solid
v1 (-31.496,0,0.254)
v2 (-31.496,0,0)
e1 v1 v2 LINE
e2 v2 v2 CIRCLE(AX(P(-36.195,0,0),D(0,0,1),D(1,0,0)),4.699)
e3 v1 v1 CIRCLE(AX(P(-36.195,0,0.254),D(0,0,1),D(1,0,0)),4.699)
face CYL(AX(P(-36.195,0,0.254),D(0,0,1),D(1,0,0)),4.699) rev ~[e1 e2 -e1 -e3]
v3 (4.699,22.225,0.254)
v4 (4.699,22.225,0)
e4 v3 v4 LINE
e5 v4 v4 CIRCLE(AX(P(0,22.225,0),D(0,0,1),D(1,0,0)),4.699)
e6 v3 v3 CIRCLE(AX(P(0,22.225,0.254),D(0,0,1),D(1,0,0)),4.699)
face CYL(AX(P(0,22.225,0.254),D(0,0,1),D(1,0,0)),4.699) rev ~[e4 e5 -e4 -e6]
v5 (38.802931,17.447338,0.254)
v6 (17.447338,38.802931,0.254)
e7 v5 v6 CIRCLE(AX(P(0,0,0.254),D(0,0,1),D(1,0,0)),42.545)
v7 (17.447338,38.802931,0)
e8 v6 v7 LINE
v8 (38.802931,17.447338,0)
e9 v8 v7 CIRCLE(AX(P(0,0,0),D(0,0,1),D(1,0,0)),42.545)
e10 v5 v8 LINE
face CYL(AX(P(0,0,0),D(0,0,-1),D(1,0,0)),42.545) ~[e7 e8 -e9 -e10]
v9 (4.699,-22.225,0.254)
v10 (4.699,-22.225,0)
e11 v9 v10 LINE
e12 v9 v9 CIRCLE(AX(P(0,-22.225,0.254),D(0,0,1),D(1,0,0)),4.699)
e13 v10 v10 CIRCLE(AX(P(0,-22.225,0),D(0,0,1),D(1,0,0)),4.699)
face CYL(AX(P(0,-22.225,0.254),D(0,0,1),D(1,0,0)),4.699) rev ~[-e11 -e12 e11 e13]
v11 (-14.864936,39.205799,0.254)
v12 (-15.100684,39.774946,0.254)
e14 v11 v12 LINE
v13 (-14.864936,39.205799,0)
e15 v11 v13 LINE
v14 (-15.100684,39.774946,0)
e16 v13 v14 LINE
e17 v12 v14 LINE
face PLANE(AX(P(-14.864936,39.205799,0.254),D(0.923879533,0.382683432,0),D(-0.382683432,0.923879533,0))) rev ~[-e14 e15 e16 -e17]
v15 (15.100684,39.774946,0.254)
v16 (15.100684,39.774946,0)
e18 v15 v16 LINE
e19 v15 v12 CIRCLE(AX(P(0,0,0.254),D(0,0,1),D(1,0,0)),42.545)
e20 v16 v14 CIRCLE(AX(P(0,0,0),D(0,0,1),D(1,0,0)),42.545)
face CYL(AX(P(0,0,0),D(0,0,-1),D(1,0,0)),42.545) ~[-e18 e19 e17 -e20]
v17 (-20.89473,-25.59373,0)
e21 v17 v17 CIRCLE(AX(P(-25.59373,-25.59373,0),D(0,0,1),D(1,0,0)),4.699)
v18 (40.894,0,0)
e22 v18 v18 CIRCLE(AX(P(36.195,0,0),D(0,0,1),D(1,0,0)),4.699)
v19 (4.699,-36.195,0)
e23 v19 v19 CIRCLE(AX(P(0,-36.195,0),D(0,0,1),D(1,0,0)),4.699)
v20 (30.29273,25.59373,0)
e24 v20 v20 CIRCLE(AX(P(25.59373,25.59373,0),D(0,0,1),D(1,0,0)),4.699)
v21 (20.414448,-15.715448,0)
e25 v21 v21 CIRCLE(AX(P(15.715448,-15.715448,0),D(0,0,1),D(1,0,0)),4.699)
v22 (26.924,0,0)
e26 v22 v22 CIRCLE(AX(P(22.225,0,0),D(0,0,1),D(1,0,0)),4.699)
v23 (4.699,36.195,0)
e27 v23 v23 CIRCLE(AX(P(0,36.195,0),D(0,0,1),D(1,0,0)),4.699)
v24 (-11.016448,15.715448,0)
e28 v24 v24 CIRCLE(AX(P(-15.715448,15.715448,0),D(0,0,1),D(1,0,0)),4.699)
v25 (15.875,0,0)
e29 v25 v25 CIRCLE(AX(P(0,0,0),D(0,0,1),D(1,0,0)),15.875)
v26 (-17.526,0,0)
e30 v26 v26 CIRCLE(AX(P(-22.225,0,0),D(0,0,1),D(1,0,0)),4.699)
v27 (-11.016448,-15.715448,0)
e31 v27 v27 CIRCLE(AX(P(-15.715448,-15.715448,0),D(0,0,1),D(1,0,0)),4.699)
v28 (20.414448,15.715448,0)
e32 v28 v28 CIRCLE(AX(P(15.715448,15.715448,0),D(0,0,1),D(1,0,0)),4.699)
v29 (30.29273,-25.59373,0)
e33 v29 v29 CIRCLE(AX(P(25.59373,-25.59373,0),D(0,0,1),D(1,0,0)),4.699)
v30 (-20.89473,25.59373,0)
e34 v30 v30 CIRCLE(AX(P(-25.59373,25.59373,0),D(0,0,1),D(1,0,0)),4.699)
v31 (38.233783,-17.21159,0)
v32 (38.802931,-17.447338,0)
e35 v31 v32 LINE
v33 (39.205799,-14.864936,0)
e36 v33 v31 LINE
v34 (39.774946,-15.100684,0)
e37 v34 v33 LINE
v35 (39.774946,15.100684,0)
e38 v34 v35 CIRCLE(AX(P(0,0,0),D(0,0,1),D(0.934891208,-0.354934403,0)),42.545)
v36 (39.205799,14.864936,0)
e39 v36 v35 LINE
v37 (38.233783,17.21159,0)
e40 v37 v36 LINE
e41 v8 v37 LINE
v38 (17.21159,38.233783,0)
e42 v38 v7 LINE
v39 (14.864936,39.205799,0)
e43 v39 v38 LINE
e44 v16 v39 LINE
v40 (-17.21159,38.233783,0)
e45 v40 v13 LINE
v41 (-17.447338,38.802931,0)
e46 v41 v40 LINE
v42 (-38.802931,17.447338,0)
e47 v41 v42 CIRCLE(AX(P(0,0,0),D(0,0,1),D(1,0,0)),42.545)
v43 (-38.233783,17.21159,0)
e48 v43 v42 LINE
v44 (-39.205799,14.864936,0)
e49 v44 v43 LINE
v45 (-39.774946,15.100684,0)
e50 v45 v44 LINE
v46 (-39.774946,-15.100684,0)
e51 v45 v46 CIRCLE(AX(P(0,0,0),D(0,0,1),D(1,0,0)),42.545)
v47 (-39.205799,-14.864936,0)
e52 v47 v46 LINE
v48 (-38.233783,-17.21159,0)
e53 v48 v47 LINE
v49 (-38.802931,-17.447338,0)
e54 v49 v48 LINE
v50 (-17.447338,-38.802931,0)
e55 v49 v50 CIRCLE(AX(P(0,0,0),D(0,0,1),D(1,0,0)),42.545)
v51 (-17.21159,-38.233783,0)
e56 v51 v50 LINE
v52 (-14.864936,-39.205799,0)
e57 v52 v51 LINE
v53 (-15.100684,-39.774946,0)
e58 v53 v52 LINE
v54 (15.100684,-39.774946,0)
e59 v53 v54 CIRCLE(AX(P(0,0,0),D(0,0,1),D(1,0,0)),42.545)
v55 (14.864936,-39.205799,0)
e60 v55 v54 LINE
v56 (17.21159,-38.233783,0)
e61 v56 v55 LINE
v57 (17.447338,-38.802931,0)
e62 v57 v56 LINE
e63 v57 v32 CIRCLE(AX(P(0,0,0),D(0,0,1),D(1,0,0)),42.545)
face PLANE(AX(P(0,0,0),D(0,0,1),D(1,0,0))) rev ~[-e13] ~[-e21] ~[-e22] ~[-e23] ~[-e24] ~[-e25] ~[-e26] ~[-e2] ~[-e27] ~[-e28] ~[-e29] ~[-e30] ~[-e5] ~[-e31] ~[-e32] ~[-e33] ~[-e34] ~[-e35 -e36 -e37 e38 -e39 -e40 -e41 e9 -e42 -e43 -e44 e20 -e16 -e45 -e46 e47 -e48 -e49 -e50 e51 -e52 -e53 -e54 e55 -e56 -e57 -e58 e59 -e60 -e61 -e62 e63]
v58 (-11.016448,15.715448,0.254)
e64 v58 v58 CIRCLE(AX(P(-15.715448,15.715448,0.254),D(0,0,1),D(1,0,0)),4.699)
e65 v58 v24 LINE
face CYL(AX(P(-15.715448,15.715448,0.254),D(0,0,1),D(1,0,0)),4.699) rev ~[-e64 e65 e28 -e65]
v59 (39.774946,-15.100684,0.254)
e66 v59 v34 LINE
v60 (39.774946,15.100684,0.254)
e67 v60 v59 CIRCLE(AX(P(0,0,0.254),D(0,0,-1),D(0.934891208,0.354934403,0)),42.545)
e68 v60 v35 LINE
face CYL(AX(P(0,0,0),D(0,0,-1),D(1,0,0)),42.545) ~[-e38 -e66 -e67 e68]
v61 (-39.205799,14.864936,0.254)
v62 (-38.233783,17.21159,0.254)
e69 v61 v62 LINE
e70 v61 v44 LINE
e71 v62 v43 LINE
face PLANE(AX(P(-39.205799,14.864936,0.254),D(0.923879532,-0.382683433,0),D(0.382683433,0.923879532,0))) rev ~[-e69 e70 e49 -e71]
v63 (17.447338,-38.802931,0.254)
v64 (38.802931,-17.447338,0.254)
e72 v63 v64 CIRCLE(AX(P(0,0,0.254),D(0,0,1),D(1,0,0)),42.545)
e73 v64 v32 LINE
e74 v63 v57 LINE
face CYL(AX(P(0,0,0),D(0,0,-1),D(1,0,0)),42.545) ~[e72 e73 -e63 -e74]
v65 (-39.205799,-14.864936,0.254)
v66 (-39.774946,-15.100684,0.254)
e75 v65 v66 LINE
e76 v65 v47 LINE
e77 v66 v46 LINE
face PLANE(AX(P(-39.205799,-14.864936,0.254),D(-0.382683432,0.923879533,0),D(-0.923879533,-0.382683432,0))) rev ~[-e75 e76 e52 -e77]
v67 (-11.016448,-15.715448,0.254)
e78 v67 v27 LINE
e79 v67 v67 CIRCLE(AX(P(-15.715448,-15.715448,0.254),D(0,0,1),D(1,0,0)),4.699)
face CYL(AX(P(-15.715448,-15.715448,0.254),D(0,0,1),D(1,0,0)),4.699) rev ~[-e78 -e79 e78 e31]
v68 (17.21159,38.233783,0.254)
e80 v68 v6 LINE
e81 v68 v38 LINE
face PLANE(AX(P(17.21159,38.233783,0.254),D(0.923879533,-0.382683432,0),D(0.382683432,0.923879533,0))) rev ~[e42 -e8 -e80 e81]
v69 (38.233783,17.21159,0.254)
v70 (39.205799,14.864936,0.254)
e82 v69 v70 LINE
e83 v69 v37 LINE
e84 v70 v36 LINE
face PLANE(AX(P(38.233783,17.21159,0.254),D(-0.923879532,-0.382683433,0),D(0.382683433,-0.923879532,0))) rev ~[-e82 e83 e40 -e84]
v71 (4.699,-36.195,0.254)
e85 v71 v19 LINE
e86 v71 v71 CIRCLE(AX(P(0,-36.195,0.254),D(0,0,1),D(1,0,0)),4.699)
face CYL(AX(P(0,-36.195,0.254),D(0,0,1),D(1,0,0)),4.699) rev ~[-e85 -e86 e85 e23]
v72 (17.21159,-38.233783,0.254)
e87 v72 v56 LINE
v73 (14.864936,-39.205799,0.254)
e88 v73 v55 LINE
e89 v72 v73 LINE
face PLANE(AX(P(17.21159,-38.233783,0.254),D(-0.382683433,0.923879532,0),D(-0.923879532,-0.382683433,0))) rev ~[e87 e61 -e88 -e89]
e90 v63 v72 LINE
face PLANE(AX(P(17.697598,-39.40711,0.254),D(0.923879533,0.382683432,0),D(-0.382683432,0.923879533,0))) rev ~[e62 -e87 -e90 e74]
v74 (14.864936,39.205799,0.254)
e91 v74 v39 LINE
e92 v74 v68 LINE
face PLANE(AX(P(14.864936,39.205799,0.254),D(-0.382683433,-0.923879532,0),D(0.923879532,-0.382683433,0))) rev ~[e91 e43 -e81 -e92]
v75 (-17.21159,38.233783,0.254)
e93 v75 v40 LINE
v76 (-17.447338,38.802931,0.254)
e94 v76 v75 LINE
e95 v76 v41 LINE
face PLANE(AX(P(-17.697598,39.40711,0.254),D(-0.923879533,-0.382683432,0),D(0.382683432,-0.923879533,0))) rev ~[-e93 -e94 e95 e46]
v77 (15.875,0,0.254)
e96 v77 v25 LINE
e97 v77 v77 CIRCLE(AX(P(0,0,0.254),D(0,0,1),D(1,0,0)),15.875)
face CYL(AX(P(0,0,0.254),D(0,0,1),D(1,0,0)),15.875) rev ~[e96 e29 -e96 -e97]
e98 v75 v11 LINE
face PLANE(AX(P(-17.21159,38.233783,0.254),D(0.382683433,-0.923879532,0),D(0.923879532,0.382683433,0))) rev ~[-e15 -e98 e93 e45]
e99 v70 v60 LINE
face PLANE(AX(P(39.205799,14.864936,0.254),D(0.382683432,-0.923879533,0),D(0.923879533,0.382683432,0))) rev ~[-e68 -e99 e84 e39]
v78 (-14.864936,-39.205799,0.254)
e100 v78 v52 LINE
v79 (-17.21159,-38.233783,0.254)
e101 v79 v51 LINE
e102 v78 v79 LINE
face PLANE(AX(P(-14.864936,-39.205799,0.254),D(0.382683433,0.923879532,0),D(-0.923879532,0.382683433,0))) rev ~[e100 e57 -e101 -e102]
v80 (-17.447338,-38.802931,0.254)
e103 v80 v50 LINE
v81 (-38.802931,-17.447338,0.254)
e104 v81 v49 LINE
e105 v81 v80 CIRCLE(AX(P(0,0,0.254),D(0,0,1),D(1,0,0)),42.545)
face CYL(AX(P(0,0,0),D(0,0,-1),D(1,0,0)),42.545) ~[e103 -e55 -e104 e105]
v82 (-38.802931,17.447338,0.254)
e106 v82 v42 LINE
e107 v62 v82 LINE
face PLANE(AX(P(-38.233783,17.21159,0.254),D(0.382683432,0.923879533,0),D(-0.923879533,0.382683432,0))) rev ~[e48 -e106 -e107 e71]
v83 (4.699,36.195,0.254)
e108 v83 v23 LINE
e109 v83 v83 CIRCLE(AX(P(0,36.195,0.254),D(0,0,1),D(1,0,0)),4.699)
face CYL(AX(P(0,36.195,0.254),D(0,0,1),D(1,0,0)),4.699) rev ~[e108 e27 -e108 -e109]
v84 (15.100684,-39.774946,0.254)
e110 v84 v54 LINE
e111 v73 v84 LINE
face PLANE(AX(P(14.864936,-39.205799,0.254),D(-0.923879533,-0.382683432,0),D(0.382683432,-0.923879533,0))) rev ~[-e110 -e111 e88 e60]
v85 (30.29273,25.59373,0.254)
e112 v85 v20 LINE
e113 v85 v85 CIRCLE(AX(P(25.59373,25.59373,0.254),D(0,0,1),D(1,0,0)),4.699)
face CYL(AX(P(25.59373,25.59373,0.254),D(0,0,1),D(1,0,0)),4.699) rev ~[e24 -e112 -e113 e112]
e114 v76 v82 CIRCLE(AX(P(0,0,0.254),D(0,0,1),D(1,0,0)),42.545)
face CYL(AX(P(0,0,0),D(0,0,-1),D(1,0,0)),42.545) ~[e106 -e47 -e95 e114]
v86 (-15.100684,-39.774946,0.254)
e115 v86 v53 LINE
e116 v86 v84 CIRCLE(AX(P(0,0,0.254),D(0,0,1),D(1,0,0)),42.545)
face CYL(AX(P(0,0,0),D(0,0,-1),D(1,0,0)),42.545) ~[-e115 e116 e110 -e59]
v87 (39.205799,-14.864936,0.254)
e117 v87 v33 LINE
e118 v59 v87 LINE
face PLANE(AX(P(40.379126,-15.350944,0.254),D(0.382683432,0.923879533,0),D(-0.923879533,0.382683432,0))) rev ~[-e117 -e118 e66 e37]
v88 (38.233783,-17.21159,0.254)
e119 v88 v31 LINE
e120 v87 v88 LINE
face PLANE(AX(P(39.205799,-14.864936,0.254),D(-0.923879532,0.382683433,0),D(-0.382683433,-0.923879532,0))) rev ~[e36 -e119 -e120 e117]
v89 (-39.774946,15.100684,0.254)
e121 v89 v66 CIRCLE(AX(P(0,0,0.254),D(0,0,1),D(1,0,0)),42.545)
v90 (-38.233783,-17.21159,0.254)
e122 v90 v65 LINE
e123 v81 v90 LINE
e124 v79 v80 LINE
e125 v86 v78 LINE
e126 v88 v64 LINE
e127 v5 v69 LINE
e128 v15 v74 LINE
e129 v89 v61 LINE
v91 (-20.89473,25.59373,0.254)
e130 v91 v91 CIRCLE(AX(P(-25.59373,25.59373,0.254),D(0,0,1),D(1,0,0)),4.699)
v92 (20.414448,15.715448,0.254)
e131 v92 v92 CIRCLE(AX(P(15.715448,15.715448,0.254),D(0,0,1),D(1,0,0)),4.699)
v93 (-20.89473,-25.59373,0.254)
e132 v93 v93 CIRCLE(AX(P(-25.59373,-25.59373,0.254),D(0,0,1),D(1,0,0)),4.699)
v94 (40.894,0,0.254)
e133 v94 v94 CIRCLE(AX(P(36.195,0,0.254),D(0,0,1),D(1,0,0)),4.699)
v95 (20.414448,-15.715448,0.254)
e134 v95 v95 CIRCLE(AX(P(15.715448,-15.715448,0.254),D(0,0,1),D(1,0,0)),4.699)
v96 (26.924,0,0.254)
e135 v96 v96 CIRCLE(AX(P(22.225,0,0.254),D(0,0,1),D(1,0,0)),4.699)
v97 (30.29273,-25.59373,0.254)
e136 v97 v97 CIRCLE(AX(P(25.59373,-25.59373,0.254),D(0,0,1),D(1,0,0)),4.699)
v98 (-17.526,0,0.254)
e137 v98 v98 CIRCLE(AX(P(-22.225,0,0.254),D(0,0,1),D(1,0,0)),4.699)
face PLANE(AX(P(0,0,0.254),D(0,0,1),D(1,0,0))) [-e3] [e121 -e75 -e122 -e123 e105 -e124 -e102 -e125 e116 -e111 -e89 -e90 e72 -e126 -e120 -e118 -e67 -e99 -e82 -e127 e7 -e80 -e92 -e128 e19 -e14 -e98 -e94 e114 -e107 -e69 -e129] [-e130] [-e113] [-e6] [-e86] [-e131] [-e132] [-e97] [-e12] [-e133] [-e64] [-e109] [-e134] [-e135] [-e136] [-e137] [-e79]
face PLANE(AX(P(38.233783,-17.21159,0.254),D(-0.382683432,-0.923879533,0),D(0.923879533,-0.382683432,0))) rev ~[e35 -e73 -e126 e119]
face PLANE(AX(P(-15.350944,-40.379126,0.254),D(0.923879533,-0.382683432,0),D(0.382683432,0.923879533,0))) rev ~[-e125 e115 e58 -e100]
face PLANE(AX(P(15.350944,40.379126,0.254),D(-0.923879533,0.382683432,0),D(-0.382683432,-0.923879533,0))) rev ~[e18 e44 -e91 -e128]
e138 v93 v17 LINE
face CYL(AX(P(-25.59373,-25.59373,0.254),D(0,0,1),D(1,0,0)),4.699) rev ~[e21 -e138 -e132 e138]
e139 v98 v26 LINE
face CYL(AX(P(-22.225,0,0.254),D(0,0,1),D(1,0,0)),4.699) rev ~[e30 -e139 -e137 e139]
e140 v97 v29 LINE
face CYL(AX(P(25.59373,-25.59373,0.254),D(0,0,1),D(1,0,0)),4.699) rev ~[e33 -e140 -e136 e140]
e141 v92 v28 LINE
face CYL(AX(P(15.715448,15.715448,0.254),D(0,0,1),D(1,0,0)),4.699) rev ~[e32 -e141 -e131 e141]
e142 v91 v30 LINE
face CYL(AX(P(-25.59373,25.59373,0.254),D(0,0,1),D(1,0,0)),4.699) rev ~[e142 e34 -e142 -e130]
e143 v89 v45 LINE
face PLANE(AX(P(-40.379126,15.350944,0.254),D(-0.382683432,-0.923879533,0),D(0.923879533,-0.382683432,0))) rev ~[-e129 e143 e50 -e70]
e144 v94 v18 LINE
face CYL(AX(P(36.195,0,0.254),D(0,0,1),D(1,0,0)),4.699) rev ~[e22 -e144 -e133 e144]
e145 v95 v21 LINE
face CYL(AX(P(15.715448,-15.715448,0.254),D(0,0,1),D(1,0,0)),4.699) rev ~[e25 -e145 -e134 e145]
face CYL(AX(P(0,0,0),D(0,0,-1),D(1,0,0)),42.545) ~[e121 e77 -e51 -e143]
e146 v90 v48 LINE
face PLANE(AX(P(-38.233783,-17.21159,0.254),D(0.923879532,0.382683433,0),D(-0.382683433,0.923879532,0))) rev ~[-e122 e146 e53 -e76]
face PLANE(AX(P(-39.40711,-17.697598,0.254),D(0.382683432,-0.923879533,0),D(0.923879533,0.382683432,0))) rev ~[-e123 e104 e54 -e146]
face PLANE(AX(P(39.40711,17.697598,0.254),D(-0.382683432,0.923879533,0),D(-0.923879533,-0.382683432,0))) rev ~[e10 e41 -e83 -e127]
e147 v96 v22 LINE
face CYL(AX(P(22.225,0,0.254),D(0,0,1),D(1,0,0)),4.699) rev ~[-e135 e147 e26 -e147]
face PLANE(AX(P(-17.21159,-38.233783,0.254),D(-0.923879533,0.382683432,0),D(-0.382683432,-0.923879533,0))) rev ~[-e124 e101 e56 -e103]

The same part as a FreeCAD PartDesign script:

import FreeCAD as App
import Part
import Sketcher
Q = App.Units.Quantity


def add_polygon(sketch, points):
    """Adds a closed chain of lines whose ends are joined by coincident constraints."""
    first, n = sketch.GeometryCount, len(points)
    for a, b in zip(points, points[1:] + points[:1]):
        sketch.addGeometry(Part.LineSegment(App.Vector(*a, 0), App.Vector(*b, 0)), False)
    for i in range(n):
        sketch.addConstraint(Sketcher.Constraint("Coincident", first + i, 2, first + (i + 1) % n, 1))

doc = App.newDocument("Part")
params = doc.addObject("Spreadsheet::Sheet", "Params")
for row, (alias, value) in enumerate([
    ("sketch1_diameter", "3.35 in"),
    ("pad1_length", "0.01 in"),
    ("sketch2_diameter", "1.25 in"),
    ("sketch3_length", "0.1 in"),
    ("sketch3_length2", "0.05 in"),
    ("sketch4_diameter", "0.37 in"),
], start=1):
    params.set(f"A{row}", alias)
    params.set(f"B{row}", "=" + value)
    params.setAlias(f"B{row}", alias)

body = doc.addObject("PartDesign::Body", "Body")

sketch1 = body.newObject("Sketcher::SketchObject", "Sketch")
sketch1.AttachmentSupport = (doc.getObject("XY_Plane"), [""])
sketch1.MapMode = "FlatFace"
sketch1.addGeometry(Part.Circle(App.Vector(0, 0, 0), App.Vector(0, 0, 1), 42.545), False)
sketch1.addConstraint([
    Sketcher.Constraint("Coincident", 0, 3, -1, 1),
    Sketcher.Constraint("Diameter", 0, Q("3.35 in")),
])
sketch1.setExpression("Constraints[1]", "Params.sketch1_diameter")
pad1 = body.newObject("PartDesign::Pad", "Pad")
pad1.Profile = sketch1
pad1.setExpression("Length", "Params.pad1_length")

sketch2 = body.newObject("Sketcher::SketchObject", "Sketch001")
sketch2.AttachmentSupport = (doc.getObject("XY_Plane"), [""])
sketch2.MapMode = "FlatFace"
sketch2.AttachmentOffset = App.Placement(App.Vector(0, 0, 0.01 * 25.4), App.Rotation())
sketch2.addGeometry(Part.Circle(App.Vector(0, 0, 0), App.Vector(0, 0, 1), 15.875), False)
sketch2.addConstraint([
    Sketcher.Constraint("Coincident", 0, 3, -1, 1),
    Sketcher.Constraint("Diameter", 0, Q("1.25 in")),
])
sketch2.setExpression("Constraints[1]", "Params.sketch2_diameter")
pocket1 = body.newObject("PartDesign::Pocket", "Pocket")
pocket1.Profile = sketch2
pocket1.Type = "ThroughAll"

sketch3 = body.newObject("Sketcher::SketchObject", "Sketch002")
sketch3.AttachmentSupport = (doc.getObject("XY_Plane"), [""])
sketch3.MapMode = "FlatFace"
sketch3.AttachmentOffset = App.Placement(App.Vector(0, 0, 0.01 * 25.4), App.Rotation())
add_polygon(sketch3, [(40.379126, 15.350944), (39.40711, 17.697598), (38.233783, 17.21159), (39.205799, 14.864936)])
add_polygon(sketch3, [(-15.350944, 40.379126), (-17.697598, 39.40711), (-17.21159, 38.233783), (-14.864936, 39.205799)])
add_polygon(sketch3, [(-39.40711, 17.697598), (-40.379126, 15.350944), (-39.205799, 14.864936), (-38.233783, 17.21159)])
add_polygon(sketch3, [(-40.379126, -15.350944), (-39.40711, -17.697598), (-38.233783, -17.21159), (-39.205799, -14.864936)])
add_polygon(sketch3, [(-17.697598, -39.40711), (-15.350944, -40.379126), (-14.864936, -39.205799), (-17.21159, -38.233783)])
add_polygon(sketch3, [(15.350944, -40.379126), (17.697598, -39.40711), (17.21159, -38.233783), (14.864936, -39.205799)])
add_polygon(sketch3, [(39.40711, -17.697598), (40.379126, -15.350944), (39.205799, -14.864936), (38.233783, -17.21159)])
add_polygon(sketch3, [(17.697598, 39.40711), (15.350944, 40.379126), (14.864936, 39.205799), (17.21159, 38.233783)])
sketch3.addConstraint([
    Sketcher.Constraint("Symmetric", 0, 2, 12, 2, -1, 1),
    Sketcher.Constraint("Symmetric", 1, 2, 13, 2, -1, 1),
    Sketcher.Constraint("Symmetric", 2, 2, 14, 2, -1, 1),
    Sketcher.Constraint("Symmetric", 3, 2, 15, 2, -1, 1),
    Sketcher.Constraint("Symmetric", 4, 2, 20, 2, -1, 1),
    Sketcher.Constraint("Symmetric", 5, 2, 21, 2, -1, 1),
    Sketcher.Constraint("Symmetric", 6, 2, 22, 2, -1, 1),
    Sketcher.Constraint("Symmetric", 7, 2, 23, 2, -1, 1),
    Sketcher.Constraint("Symmetric", 8, 2, 24, 2, -1, 1),
    Sketcher.Constraint("Symmetric", 9, 2, 25, 2, -1, 1),
    Sketcher.Constraint("Symmetric", 10, 2, 26, 2, -1, 1),
    Sketcher.Constraint("Symmetric", 11, 2, 27, 2, -1, 1),
    Sketcher.Constraint("Symmetric", 16, 2, 28, 2, -1, 1),
    Sketcher.Constraint("Symmetric", 17, 2, 29, 2, -1, 1),
    Sketcher.Constraint("Symmetric", 18, 2, 30, 2, -1, 1),
    Sketcher.Constraint("Symmetric", 19, 2, 31, 2, -1, 1),
    Sketcher.Constraint("Symmetric", 3, 2, 8, 2, -2),
    Sketcher.Constraint("Symmetric", 2, 2, 9, 2, -2),
    Sketcher.Constraint("Symmetric", 1, 2, 10, 2, -2),
    Sketcher.Constraint("Symmetric", 0, 2, 11, 2, -2),
    Sketcher.Constraint("Symmetric", 19, 2, 20, 2, -2),
    Sketcher.Constraint("Symmetric", 18, 2, 21, 2, -2),
    Sketcher.Constraint("Symmetric", 17, 2, 22, 2, -2),
    Sketcher.Constraint("Symmetric", 16, 2, 23, 2, -2),
    Sketcher.Constraint("Perpendicular", 0, 1),
    Sketcher.Constraint("Perpendicular", 1, 2),
    Sketcher.Constraint("Perpendicular", 2, 3),
    Sketcher.Constraint("Parallel", 3, 4),
    Sketcher.Constraint("Perpendicular", 4, 5),
    Sketcher.Constraint("Perpendicular", 5, 6),
    Sketcher.Constraint("Perpendicular", 6, 7),
    Sketcher.Constraint("Equal", 2, 4),
    Sketcher.Constraint("Equal", 3, 5),
    Sketcher.Constraint("Distance", 0, Q("0.1 in")),
    Sketcher.Constraint("Angle", 0, Q("112.5 deg")),
    Sketcher.Constraint("Distance", 1, Q("0.05 in")),
    Sketcher.Constraint("DistanceX", -1, 1, 2, 2, 39.205799),
    Sketcher.Constraint("DistanceY", -1, 1, 6, 2, 39.205799),
    Sketcher.Constraint("DistanceX", 5, 2, 0, 2, 56.6187),
    Sketcher.Constraint("DistanceY", 0, 2, 6, 2, 21.508202),
])
sketch3.setExpression("Constraints[65]", "Params.sketch3_length")
sketch3.setExpression("Constraints[67]", "Params.sketch3_length2")
pocket2 = body.newObject("PartDesign::Pocket", "Pocket001")
pocket2.Profile = sketch3
pocket2.Type = "ThroughAll"

sketch4 = body.newObject("Sketcher::SketchObject", "Sketch003")
sketch4.AttachmentSupport = (doc.getObject("XY_Plane"), [""])
sketch4.MapMode = "FlatFace"
sketch4.AttachmentOffset = App.Placement(App.Vector(0, 0, 0.01 * 25.4), App.Rotation())
sketch4.addGeometry([
    Part.Circle(App.Vector(22.225, 0, 0), App.Vector(0, 0, 1), 4.699),
    Part.Circle(App.Vector(36.195, 0, 0), App.Vector(0, 0, 1), 4.699),
    Part.Circle(App.Vector(15.715448, -15.715448, 0), App.Vector(0, 0, 1), 4.699),
    Part.Circle(App.Vector(25.59373, -25.59373, 0), App.Vector(0, 0, 1), 4.699),
    Part.Circle(App.Vector(0, -22.225, 0), App.Vector(0, 0, 1), 4.699),
    Part.Circle(App.Vector(0, -36.195, 0), App.Vector(0, 0, 1), 4.699),
    Part.Circle(App.Vector(-15.715448, -15.715448, 0), App.Vector(0, 0, 1), 4.699),
    Part.Circle(App.Vector(-25.59373, -25.59373, 0), App.Vector(0, 0, 1), 4.699),
    Part.Circle(App.Vector(-22.225, 0, 0), App.Vector(0, 0, 1), 4.699),
    Part.Circle(App.Vector(-36.195, 0, 0), App.Vector(0, 0, 1), 4.699),
    Part.Circle(App.Vector(-15.715448, 15.715448, 0), App.Vector(0, 0, 1), 4.699),
    Part.Circle(App.Vector(-25.59373, 25.59373, 0), App.Vector(0, 0, 1), 4.699),
    Part.Circle(App.Vector(0, 22.225, 0), App.Vector(0, 0, 1), 4.699),
    Part.Circle(App.Vector(0, 36.195, 0), App.Vector(0, 0, 1), 4.699),
    Part.Circle(App.Vector(15.715448, 15.715448, 0), App.Vector(0, 0, 1), 4.699),
    Part.Circle(App.Vector(25.59373, 25.59373, 0), App.Vector(0, 0, 1), 4.699),
], False)
sketch4.addConstraint([
    Sketcher.Constraint("Equal", 0, 1),
    Sketcher.Constraint("Equal", 1, 2),
    Sketcher.Constraint("Equal", 2, 3),
    Sketcher.Constraint("Equal", 3, 4),
    Sketcher.Constraint("Equal", 4, 5),
    Sketcher.Constraint("Equal", 5, 6),
    Sketcher.Constraint("Equal", 6, 7),
    Sketcher.Constraint("Equal", 7, 8),
    Sketcher.Constraint("Equal", 8, 9),
    Sketcher.Constraint("Equal", 9, 10),
    Sketcher.Constraint("Equal", 10, 11),
    Sketcher.Constraint("Equal", 11, 12),
    Sketcher.Constraint("Equal", 12, 13),
    Sketcher.Constraint("Equal", 13, 14),
    Sketcher.Constraint("Equal", 14, 15),
    Sketcher.Constraint("Symmetric", 0, 3, 8, 3, -1, 1),
    Sketcher.Constraint("Symmetric", 1, 3, 9, 3, -1, 1),
    Sketcher.Constraint("Symmetric", 2, 3, 10, 3, -1, 1),
    Sketcher.Constraint("Symmetric", 3, 3, 11, 3, -1, 1),
    Sketcher.Constraint("Symmetric", 4, 3, 12, 3, -1, 1),
    Sketcher.Constraint("Symmetric", 5, 3, 13, 3, -1, 1),
    Sketcher.Constraint("Symmetric", 6, 3, 14, 3, -1, 1),
    Sketcher.Constraint("Symmetric", 7, 3, 15, 3, -1, 1),
    Sketcher.Constraint("Symmetric", 2, 3, 6, 3, -2),
    Sketcher.Constraint("Symmetric", 3, 3, 7, 3, -2),
    Sketcher.Constraint("PointOnObject", 0, 3, -1),
    Sketcher.Constraint("PointOnObject", 1, 3, -1),
    Sketcher.Constraint("PointOnObject", 4, 3, -2),
    Sketcher.Constraint("PointOnObject", 5, 3, -2),
    Sketcher.Constraint("Diameter", 0, Q("0.37 in")),
    Sketcher.Constraint("DistanceX", 0, 3, 1, 3, Q("0.55 in")),
    Sketcher.Constraint("DistanceY", 5, 3, 4, 3, Q("0.55 in")),
    Sketcher.Constraint("DistanceX", -1, 1, 0, 3, Q("0.875 in")),
    Sketcher.Constraint("DistanceY", 4, 3, -1, 1, Q("0.875 in")),
    Sketcher.Constraint("DistanceX", -1, 1, 2, 3, 15.715448),
    Sketcher.Constraint("DistanceY", 2, 3, -1, 1, 15.715448),
    Sketcher.Constraint("DistanceX", -1, 1, 3, 3, 25.59373),
    Sketcher.Constraint("DistanceY", 3, 3, -1, 1, 25.59373),
])
sketch4.setExpression("Constraints[29]", "Params.sketch4_diameter")
pocket3 = body.newObject("PartDesign::Pocket", "Pocket002")
pocket3.Profile = sketch4
pocket3.Type = "ThroughAll"

doc.recompute()
